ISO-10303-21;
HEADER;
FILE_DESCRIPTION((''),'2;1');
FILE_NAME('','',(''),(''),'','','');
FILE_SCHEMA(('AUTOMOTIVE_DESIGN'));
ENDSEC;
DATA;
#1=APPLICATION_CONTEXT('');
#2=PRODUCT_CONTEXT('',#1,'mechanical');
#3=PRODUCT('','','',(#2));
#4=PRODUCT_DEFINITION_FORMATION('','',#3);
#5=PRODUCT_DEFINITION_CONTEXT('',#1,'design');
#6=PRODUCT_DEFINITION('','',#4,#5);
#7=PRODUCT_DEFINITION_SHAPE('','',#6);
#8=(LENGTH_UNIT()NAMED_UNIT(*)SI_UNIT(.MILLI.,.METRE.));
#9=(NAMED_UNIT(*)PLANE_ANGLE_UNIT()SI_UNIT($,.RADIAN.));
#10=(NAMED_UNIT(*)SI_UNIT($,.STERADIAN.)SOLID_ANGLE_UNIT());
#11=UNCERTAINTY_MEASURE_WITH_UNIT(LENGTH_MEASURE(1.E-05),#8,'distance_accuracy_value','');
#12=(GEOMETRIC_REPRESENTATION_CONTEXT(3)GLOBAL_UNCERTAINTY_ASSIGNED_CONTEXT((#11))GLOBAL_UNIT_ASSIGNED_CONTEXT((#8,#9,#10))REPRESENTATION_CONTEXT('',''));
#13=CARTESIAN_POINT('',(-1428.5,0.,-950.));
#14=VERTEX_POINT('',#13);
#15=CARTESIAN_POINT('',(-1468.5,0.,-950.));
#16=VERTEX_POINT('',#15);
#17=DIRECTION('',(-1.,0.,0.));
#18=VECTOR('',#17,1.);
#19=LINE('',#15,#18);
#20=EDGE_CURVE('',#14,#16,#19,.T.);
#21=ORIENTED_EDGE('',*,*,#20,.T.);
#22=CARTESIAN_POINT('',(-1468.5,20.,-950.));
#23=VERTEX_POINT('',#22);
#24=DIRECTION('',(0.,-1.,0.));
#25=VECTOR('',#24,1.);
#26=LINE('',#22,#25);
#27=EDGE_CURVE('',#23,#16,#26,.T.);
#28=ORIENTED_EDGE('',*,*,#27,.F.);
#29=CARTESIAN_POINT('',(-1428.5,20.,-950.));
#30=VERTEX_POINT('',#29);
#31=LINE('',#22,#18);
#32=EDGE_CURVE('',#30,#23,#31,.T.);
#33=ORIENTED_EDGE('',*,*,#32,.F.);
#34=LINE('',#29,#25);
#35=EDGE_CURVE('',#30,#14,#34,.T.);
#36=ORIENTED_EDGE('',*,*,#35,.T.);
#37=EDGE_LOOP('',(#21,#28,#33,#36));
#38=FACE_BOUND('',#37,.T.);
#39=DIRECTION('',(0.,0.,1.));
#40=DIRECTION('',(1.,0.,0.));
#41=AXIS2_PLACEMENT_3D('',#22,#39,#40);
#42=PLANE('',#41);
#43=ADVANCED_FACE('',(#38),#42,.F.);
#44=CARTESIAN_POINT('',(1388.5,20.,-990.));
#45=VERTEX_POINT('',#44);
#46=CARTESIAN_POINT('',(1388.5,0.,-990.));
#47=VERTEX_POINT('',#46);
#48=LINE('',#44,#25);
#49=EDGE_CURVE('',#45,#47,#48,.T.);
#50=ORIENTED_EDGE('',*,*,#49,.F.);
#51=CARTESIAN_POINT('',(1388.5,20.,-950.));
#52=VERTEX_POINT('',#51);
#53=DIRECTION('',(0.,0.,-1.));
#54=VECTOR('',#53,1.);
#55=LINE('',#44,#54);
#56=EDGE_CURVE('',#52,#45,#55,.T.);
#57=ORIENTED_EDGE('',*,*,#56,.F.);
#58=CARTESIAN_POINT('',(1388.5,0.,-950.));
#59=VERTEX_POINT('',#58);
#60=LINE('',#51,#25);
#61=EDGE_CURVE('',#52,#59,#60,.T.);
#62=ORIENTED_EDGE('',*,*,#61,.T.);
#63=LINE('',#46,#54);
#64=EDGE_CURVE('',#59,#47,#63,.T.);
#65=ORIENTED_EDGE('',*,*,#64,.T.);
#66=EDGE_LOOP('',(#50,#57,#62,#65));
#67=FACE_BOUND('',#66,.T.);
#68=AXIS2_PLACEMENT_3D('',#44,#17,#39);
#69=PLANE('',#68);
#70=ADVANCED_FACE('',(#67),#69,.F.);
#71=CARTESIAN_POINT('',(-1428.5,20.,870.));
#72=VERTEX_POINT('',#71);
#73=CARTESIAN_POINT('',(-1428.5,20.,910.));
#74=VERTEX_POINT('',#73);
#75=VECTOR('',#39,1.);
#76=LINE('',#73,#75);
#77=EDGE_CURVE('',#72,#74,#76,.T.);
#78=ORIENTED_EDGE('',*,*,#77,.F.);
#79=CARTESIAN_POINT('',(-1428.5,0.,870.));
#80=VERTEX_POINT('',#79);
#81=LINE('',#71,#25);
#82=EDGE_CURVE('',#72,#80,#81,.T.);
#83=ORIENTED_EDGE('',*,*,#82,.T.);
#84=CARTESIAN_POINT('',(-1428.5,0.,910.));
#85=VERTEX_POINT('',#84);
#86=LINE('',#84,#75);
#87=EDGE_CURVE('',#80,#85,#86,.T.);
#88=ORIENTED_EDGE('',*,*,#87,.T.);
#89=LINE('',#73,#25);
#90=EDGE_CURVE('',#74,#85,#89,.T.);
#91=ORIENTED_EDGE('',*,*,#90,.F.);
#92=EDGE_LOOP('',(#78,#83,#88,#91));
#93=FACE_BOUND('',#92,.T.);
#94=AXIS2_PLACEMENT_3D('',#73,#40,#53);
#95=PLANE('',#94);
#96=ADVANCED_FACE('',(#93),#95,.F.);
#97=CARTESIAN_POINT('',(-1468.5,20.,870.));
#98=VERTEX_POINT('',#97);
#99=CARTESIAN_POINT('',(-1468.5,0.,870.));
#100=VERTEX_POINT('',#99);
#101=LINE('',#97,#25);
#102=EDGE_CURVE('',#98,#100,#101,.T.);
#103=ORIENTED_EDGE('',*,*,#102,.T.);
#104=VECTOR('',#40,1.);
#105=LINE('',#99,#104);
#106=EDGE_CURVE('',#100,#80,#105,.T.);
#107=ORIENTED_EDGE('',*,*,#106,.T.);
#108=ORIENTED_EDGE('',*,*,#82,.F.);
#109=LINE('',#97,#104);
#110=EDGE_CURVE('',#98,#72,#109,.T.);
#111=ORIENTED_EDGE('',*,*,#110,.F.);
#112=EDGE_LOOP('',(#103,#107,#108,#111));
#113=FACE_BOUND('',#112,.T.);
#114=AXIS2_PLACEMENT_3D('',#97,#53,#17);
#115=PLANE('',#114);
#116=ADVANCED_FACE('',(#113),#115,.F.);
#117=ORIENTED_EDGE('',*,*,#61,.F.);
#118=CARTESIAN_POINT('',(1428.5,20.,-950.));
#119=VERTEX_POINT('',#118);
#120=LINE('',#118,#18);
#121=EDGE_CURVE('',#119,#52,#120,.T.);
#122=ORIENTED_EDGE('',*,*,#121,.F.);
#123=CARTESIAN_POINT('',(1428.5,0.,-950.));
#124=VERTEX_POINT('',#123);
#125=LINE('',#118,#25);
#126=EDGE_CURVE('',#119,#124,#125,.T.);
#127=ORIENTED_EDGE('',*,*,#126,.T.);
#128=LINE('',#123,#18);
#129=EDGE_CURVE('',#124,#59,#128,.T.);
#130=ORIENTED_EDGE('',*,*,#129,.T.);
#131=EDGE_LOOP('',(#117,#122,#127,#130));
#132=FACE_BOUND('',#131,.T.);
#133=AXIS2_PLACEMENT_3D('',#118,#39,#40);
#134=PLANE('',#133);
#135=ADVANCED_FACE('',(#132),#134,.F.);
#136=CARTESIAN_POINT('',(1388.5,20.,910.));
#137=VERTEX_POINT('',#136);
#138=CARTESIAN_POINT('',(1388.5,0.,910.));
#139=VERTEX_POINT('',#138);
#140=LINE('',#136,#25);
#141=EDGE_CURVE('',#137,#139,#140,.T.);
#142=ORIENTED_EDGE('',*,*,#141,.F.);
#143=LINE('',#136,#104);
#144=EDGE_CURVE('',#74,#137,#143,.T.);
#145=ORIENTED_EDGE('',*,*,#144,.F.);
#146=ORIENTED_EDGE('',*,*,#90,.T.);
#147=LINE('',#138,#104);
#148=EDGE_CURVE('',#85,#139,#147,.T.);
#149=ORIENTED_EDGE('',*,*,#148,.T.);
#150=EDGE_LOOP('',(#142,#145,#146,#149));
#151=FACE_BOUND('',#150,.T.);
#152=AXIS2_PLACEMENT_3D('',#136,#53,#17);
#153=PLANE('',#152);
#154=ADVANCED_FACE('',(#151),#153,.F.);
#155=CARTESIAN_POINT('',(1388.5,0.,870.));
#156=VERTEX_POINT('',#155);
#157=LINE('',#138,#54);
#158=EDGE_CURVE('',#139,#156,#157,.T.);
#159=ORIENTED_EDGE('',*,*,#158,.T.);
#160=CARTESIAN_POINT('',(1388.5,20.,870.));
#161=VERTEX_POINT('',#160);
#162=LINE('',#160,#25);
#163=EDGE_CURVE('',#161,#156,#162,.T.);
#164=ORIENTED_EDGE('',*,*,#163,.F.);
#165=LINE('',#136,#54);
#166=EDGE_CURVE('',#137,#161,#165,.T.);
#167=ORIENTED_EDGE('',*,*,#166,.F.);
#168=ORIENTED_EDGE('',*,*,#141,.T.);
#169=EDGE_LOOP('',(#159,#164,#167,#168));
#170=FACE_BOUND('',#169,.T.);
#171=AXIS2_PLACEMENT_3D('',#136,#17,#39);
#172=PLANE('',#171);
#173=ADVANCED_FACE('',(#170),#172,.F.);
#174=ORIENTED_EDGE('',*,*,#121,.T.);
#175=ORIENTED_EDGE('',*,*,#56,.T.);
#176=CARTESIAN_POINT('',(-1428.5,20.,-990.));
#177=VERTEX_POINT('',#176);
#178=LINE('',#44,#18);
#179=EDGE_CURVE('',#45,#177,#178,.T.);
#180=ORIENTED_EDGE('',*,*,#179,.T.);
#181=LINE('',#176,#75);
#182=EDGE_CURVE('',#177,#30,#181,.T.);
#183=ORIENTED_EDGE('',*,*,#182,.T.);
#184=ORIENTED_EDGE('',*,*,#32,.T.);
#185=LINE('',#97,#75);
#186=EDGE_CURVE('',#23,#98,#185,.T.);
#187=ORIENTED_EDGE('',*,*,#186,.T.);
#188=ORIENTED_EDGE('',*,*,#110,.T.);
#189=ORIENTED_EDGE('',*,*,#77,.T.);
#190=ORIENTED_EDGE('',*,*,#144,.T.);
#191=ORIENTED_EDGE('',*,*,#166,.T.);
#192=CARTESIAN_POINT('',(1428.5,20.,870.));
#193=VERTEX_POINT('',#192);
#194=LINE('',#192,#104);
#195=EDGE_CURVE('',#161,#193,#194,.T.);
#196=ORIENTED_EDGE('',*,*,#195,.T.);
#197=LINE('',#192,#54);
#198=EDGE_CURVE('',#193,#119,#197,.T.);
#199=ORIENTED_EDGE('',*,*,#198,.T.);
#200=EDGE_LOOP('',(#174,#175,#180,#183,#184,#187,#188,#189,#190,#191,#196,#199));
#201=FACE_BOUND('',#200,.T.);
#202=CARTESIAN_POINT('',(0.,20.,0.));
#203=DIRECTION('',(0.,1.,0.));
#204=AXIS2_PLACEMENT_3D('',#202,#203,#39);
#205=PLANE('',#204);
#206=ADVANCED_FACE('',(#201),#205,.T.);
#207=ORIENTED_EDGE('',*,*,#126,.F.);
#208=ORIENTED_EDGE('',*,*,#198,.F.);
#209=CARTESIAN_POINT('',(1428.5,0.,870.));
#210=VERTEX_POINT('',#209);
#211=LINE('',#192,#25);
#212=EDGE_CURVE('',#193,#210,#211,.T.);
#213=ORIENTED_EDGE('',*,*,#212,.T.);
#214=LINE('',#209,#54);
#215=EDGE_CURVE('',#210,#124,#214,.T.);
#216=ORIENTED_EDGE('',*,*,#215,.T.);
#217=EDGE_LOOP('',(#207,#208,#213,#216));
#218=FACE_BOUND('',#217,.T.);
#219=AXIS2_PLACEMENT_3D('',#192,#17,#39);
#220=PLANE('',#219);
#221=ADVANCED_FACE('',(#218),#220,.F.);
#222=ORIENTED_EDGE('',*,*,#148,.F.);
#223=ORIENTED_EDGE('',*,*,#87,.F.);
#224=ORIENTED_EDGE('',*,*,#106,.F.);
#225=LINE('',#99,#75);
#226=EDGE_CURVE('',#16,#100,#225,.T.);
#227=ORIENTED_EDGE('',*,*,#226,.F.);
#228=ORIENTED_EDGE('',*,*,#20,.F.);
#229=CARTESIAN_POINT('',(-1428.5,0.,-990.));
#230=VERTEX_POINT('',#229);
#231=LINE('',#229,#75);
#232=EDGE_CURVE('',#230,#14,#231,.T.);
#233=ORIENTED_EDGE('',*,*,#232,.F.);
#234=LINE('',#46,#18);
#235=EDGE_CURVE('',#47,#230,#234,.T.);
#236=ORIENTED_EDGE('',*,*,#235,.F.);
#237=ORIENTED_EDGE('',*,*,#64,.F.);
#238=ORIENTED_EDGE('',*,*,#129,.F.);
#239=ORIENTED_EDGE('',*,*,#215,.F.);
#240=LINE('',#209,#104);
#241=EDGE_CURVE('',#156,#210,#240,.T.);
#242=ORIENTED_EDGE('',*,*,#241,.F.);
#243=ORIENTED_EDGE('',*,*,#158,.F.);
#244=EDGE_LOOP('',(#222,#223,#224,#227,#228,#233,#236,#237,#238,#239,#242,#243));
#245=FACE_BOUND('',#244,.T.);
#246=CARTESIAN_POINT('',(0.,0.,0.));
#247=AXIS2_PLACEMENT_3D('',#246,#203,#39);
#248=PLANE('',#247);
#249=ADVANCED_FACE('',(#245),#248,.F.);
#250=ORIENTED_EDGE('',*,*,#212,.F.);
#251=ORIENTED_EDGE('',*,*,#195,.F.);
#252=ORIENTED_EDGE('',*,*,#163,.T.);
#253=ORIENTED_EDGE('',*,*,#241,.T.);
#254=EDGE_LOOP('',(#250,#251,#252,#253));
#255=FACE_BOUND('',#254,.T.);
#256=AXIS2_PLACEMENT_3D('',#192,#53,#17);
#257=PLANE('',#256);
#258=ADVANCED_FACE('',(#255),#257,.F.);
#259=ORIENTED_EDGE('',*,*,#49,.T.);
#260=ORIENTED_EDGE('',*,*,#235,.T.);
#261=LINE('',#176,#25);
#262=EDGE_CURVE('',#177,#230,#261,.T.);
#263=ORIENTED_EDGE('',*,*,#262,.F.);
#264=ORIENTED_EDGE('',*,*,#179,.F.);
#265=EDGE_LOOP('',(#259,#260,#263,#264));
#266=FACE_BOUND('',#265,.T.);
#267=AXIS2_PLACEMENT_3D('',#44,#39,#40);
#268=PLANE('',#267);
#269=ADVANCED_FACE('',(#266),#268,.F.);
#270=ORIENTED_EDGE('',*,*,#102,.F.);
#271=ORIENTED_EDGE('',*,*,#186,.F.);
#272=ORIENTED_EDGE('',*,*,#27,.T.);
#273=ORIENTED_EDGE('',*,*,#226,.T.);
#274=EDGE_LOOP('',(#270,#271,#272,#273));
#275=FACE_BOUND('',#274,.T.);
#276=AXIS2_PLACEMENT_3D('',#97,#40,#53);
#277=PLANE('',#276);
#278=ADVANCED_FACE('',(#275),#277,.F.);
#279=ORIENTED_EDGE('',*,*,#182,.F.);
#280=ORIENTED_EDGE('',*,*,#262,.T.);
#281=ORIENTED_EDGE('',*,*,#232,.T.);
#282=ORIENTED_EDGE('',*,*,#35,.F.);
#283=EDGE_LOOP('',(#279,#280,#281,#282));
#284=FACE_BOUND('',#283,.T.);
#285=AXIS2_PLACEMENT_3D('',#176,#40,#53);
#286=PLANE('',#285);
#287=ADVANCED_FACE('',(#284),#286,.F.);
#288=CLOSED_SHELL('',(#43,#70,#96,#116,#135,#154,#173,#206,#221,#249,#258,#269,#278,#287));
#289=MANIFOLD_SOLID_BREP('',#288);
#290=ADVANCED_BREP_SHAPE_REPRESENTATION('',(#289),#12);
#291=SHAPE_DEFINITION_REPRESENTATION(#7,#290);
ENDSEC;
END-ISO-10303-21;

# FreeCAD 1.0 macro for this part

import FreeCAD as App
import Part
import Sketcher
from FreeCAD import Vector

doc = App.newDocument("Part")
body = doc.addObject("PartDesign::Body", "Body")

sketch1 = doc.addObject("Sketcher::SketchObject", "Sketch")
body.addObject(sketch1)
sketch1.AttachmentSupport = (doc.XZ_Plane, [""])
sketch1.MapMode = "FlatFace"
sketch1.addGeometry([
    Part.LineSegment(Vector(-1428.5, 910, 0), Vector(1388.5, 910, 0)),
    Part.LineSegment(Vector(1388.5, 910, 0), Vector(1388.5, 870, 0)),
    Part.LineSegment(Vector(1388.5, 870, 0), Vector(1428.5, 870, 0)),
    Part.LineSegment(Vector(1428.5, 870, 0), Vector(1428.5, -950, 0)),
    Part.LineSegment(Vector(1428.5, -950, 0), Vector(1388.5, -950, 0)),
    Part.LineSegment(Vector(1388.5, -950, 0), Vector(1388.5, -990, 0)),
    Part.LineSegment(Vector(1388.5, -990, 0), Vector(-1428.5, -990, 0)),
    Part.LineSegment(Vector(-1428.5, -990, 0), Vector(-1428.5, -950, 0)),
    Part.LineSegment(Vector(-1428.5, -950, 0), Vector(-1468.5, -950, 0)),
    Part.LineSegment(Vector(-1468.5, -950, 0), Vector(-1468.5, 870, 0)),
    Part.LineSegment(Vector(-1468.5, 870, 0), Vector(-1428.5, 870, 0)),
    Part.LineSegment(Vector(-1428.5, 870, 0), Vector(-1428.5, 910, 0)),
], False)
sketch1.addConstraint([
    Sketcher.Constraint("Coincident", 0, 2, 1, 1),
    Sketcher.Constraint("Coincident", 1, 2, 2, 1),
    Sketcher.Constraint("Coincident", 2, 2, 3, 1),
    Sketcher.Constraint("Coincident", 3, 2, 4, 1),
    Sketcher.Constraint("Coincident", 4, 2, 5, 1),
    Sketcher.Constraint("Coincident", 5, 2, 6, 1),
    Sketcher.Constraint("Coincident", 6, 2, 7, 1),
    Sketcher.Constraint("Coincident", 7, 2, 8, 1),
    Sketcher.Constraint("Coincident", 8, 2, 9, 1),
    Sketcher.Constraint("Coincident", 9, 2, 10, 1),
    Sketcher.Constraint("Coincident", 10, 2, 11, 1),
    Sketcher.Constraint("Coincident", 11, 2, 0, 1),
    Sketcher.Constraint("Horizontal", 0),
    Sketcher.Constraint("Vertical", 1),
    Sketcher.Constraint("Horizontal", 2),
    Sketcher.Constraint("Vertical", 3),
    Sketcher.Constraint("Horizontal", 4),
    Sketcher.Constraint("Vertical", 5),
    Sketcher.Constraint("Horizontal", 6),
    Sketcher.Constraint("Vertical", 7),
    Sketcher.Constraint("Horizontal", 8),
    Sketcher.Constraint("Vertical", 9),
    Sketcher.Constraint("Horizontal", 10),
    Sketcher.Constraint("Vertical", 11),
    Sketcher.Constraint("Symmetric", 3, 2, 7, 2, -2),
    Sketcher.Constraint("Symmetric", 2, 2, 10, 2, -2),
    Sketcher.Constraint("Vertical", 1, 2, 4, 2),
    Sketcher.Constraint("Equal", 4, 8),
    Sketcher.Constraint("Equal", 10, 1),
    Sketcher.Constraint("Equal", 1, 5),
    Sketcher.Constraint("DistanceX", 0, 1, 0, 2, 2817.0),
    Sketcher.Constraint("DistanceX", 2, 1, 2, 2, 40.0),
    Sketcher.Constraint("DistanceY", 3, 2, 3, 1, 1820.0),
    Sketcher.Constraint("DistanceY", -1, 1, 0, 2, 910.0),
])
pad1 = doc.addObject("PartDesign::Pad", "Pad")
body.addObject(pad1)
pad1.Profile = sketch1
pad1.Length = 20
pad1.Reversed = True

doc.recompute()
